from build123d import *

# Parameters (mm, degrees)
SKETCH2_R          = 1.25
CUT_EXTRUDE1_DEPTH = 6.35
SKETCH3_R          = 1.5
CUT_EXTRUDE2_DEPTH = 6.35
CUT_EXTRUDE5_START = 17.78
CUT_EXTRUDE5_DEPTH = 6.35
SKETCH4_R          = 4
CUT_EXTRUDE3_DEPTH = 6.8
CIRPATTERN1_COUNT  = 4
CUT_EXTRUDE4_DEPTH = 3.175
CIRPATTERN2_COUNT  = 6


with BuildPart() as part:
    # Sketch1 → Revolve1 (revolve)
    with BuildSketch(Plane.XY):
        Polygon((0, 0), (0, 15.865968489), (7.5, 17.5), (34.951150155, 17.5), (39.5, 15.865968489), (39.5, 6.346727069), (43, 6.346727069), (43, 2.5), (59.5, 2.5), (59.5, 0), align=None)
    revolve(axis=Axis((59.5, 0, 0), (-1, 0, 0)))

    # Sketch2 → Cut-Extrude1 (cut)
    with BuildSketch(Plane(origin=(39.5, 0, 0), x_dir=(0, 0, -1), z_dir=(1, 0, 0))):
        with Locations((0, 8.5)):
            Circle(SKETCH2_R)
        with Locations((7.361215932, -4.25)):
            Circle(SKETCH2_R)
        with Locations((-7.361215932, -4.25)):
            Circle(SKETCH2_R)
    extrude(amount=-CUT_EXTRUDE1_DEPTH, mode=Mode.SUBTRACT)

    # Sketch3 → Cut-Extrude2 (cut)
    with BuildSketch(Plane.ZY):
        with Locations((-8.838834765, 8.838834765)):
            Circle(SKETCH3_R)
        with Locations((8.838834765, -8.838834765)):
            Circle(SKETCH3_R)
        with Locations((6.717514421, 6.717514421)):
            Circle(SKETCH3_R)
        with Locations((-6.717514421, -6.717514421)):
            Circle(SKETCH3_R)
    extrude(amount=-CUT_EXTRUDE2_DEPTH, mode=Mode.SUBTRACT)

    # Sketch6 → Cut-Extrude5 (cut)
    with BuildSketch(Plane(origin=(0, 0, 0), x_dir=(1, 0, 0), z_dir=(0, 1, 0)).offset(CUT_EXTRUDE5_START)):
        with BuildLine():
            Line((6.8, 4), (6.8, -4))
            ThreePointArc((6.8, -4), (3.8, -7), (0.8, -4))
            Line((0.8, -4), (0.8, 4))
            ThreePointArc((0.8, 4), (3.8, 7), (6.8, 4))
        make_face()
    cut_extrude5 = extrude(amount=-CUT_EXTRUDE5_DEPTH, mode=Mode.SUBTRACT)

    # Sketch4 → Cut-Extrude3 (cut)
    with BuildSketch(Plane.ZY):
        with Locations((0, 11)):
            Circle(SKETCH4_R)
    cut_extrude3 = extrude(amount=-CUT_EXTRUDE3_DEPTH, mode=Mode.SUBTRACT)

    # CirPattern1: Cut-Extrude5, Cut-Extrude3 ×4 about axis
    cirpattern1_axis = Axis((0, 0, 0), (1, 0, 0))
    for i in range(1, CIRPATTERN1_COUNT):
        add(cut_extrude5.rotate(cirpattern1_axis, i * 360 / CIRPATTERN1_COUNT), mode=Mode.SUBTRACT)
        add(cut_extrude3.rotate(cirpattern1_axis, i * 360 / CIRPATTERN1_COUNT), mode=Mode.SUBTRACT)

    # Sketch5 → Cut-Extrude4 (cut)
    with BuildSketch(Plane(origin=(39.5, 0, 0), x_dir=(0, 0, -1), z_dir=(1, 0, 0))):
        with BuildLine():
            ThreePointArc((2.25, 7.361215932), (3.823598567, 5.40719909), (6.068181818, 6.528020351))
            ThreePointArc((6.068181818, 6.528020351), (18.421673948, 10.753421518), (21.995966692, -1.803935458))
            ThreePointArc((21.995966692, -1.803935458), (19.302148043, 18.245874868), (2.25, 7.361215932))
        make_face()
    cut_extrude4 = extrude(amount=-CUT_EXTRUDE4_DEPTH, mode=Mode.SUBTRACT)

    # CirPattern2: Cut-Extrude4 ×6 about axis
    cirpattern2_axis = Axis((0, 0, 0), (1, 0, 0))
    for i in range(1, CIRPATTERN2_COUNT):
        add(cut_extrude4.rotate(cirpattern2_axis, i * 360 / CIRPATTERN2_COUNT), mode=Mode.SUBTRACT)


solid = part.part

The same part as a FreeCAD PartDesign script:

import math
import FreeCAD as App
import Part
import Sketcher

V = App.Vector
Q = App.Units.Quantity


def add_polygon(sketch, points):
    """Adds a closed chain of lines whose ends are joined by coincident constraints."""
    first, n = sketch.GeometryCount, len(points)
    for a, b in zip(points, points[1:] + points[:1]):
        sketch.addGeometry(Part.LineSegment(App.Vector(*a, 0), App.Vector(*b, 0)), False)
    for i in range(n):
        sketch.addConstraint(Sketcher.Constraint("Coincident", first + i, 2, first + (i + 1) % n, 1))

doc = App.newDocument("Part")
body = doc.addObject("PartDesign::Body", "Body")

# Sketch on XY plane
sketch1 = body.newObject("Sketcher::SketchObject", "Sketch")
sketch1.AttachmentSupport = (doc.getObject("XY_Plane"), [""])
sketch1.MapMode = "FlatFace"
add_polygon(sketch1, [(0, 15.9), (0, 0), (59.5, 0), (59.5, 2.5), (43, 2.5), (43, 6.3), (39.5, 6.3), (39.5, 15.9), (35, 17.5), (7.5, 17.5)])  # lines 0-9
sketch1.addConstraint([
    Sketcher.Constraint("Vertical", 0),
    Sketcher.Constraint("Horizontal", 1),
    Sketcher.Constraint("Vertical", 2),
    Sketcher.Constraint("Horizontal", 3),
    Sketcher.Constraint("Vertical", 4),
    Sketcher.Constraint("Horizontal", 5),
    Sketcher.Constraint("Vertical", 6),
    Sketcher.Constraint("Horizontal", 8),
    Sketcher.Constraint("Coincident", 0, 2, -1, 1),
    Sketcher.Constraint("Horizontal", 6, 2, 9, 2),
    Sketcher.Constraint("DistanceX", 1, 1, 1, 2, Q("59.5 mm")),
    Sketcher.Constraint("DistanceX", 3, 2, 3, 1, Q("16.5 mm")),
    Sketcher.Constraint("DistanceX", 5, 2, 5, 1, Q("3.5 mm")),
    Sketcher.Constraint("DistanceY", 2, 1, 2, 2, Q("2.5 mm")),
    Sketcher.Constraint("DistanceY", 3, 2, 7, 2, Q("15 mm")),
    Sketcher.Constraint("DistanceX", 8, 2, 6, 2, Q("32 mm")),
    Sketcher.Constraint("DistanceX", 8, 2, 8, 1, Q("27.45115 mm")),
    Sketcher.Constraint("DistanceY", 0, 2, 0, 1, Q("15.865968 mm")),
    Sketcher.Constraint("DistanceY", 6, 1, 6, 2, Q("9.519241 mm")),
])
revolution = body.newObject("PartDesign::Revolution", "Revolution")
revolution.Profile = sketch1
revolution.ReferenceAxis = (sketch1, ["H_Axis"])
revolution.Angle = 360

# Sketch on YZ plane
sketch2 = body.newObject("Sketcher::SketchObject", "Sketch001")
sketch2.AttachmentSupport = (doc.getObject("YZ_Plane"), [""])
sketch2.MapMode = "FlatFace"
sketch2.AttachmentOffset = App.Placement(V(0, 0, 39.5), App.Rotation())
sketch2.addGeometry([
    Part.Circle(V(8.5, 0, 0), V(0, 0, 1), 1.2),
    Part.Circle(V(-4.2, -7.4, 0), V(0, 0, 1), 1.2),
    Part.Circle(V(-4.2, 7.4, 0), V(0, 0, 1), 1.2),
], False)
sketch2.addConstraint([
    Sketcher.Constraint("Equal", 0, 1),
    Sketcher.Constraint("Equal", 1, 2),
    Sketcher.Constraint("Symmetric", 1, 3, 2, 3, -1),
    Sketcher.Constraint("PointOnObject", 0, 3, -1),
    Sketcher.Constraint("Diameter", 0, Q("2.5 mm")),
    Sketcher.Constraint("DistanceX", -1, 1, 0, 3, Q("8.5 mm")),
    Sketcher.Constraint("DistanceX", 1, 3, -1, 1, Q("4.25 mm")),
    Sketcher.Constraint("DistanceY", 1, 3, 2, 3, Q("14.722432 mm")),
])
pocket1 = body.newObject("PartDesign::Pocket", "Pocket")
pocket1.Profile = sketch2
pocket1.Length = 6.35

# Sketch on YZ plane
sketch3 = body.newObject("Sketcher::SketchObject", "Sketch002")
sketch3.AttachmentSupport = (doc.getObject("YZ_Plane"), [""])
sketch3.MapMode = "FlatFace"
sketch3.addGeometry([
    Part.Circle(V(8.8, -8.8, 0), V(0, 0, 1), 1.5),
    Part.Circle(V(-8.8, 8.8, 0), V(0, 0, 1), 1.5),
    Part.Circle(V(6.7, 6.7, 0), V(0, 0, 1), 1.5),
    Part.Circle(V(-6.7, -6.7, 0), V(0, 0, 1), 1.5),
], False)
sketch3.addConstraint([
    Sketcher.Constraint("Equal", 0, 1),
    Sketcher.Constraint("Equal", 1, 2),
    Sketcher.Constraint("Equal", 2, 3),
    Sketcher.Constraint("Symmetric", 0, 3, 1, 3, -1, 1),
    Sketcher.Constraint("Symmetric", 2, 3, 3, 3, -1, 1),
    Sketcher.Constraint("Diameter", 0, Q("3 mm")),
    Sketcher.Constraint("DistanceX", 1, 3, 0, 3, Q("17.67767 mm")),
    Sketcher.Constraint("DistanceY", 0, 3, 1, 3, Q("17.67767 mm")),
    Sketcher.Constraint("DistanceX", 2, 3, 0, 3, Q("2.12132 mm")),
    Sketcher.Constraint("DistanceY", 0, 3, 2, 3, Q("15.556349 mm")),
])
pocket2 = body.newObject("PartDesign::Pocket", "Pocket001")
pocket2.Profile = sketch3
pocket2.Length = 6.35
pocket2.Reversed = True

# Sketch on XZ plane
sketch4 = body.newObject("Sketcher::SketchObject", "Sketch003")
sketch4.AttachmentSupport = (doc.getObject("XZ_Plane"), [""])
sketch4.MapMode = "FlatFace"
sketch4.AttachmentOffset = App.Placement(V(0, 0, -17.78), App.Rotation())
sketch4.addGeometry([
    Part.LineSegment(V(6.8, 4, 0), V(6.8, -4, 0)),
    Part.ArcOfCircle(Part.Circle(V(3.8, -4, 0), V(0, 0, 1), 3), math.radians(180), math.radians(360)),
    Part.LineSegment(V(0.8, -4, 0), V(0.8, 4, 0)),
    Part.ArcOfCircle(Part.Circle(V(3.8, 4, 0), V(0, 0, 1), 3), math.radians(0), math.radians(180)),
], False)
sketch4.addConstraint([
    Sketcher.Constraint("Tangent", 0, 2, 1, 2),
    Sketcher.Constraint("Tangent", 1, 1, 2, 1),
    Sketcher.Constraint("Tangent", 2, 2, 3, 2),
    Sketcher.Constraint("Tangent", 3, 1, 0, 1),
    Sketcher.Constraint("Vertical", 0),
    Sketcher.Constraint("Vertical", 2),
    Sketcher.Constraint("Radius", 1, Q("3 mm")),
    Sketcher.Constraint("DistanceY", 0, 2, 0, 1, Q("8 mm")),
    Sketcher.Constraint("DistanceY", 1, 3, -1, 1, Q("4 mm")),
    Sketcher.Constraint("DistanceX", -1, 1, 1, 3, Q("3.8 mm")),
])
pocket3 = body.newObject("PartDesign::Pocket", "Pocket002")
pocket3.Profile = sketch4
pocket3.Length = 6.35
pocket3.Reversed = True

# Sketch on YZ plane
sketch5 = body.newObject("Sketcher::SketchObject", "Sketch004")
sketch5.AttachmentSupport = (doc.getObject("YZ_Plane"), [""])
sketch5.MapMode = "FlatFace"
sketch5.addGeometry(Part.Circle(V(11, 0, 0), V(0, 0, 1), 4), False)
sketch5.addConstraint([
    Sketcher.Constraint("PointOnObject", 0, 3, -1),
    Sketcher.Constraint("Diameter", 0, Q("8 mm")),
    Sketcher.Constraint("DistanceX", -1, 1, 0, 3, Q("11 mm")),
])
pocket4 = body.newObject("PartDesign::Pocket", "Pocket003")
pocket4.Profile = sketch5
pocket4.Length = 6.8
pocket4.Reversed = True
doc.recompute()

polarpattern = body.newObject("PartDesign::PolarPattern", "PolarPattern")
polarpattern.Originals = [pocket3, pocket4]
polarpattern.Axis = (doc.getObject("X_Axis"), [""])
polarpattern.Angle = 360
polarpattern.Occurrences = 4
body.Tip = polarpattern

# Sketch on YZ plane
sketch6 = body.newObject("Sketcher::SketchObject", "Sketch005")
sketch6.AttachmentSupport = (doc.getObject("YZ_Plane"), [""])
sketch6.MapMode = "FlatFace"
sketch6.AttachmentOffset = App.Placement(V(0, 0, 39.5), App.Rotation())
sketch6.addGeometry([
    Part.ArcOfCircle(Part.Circle(V(7.4, -4.2, 0), V(0, 0, 1), 2), math.radians(90), math.radians(245)),
    Part.ArcOfCircle(Part.Circle(V(2.8, -14.2, 0), V(0, 0, 1), 9), math.radians(-121), math.radians(65)),
    Part.ArcOfCircle(Part.Circle(V(7.4, -14.2, 0), V(0, 0, 1), 12), math.radians(-140), math.radians(90)),
], False)
sketch6.addConstraint([
    Sketcher.Constraint("Tangent", 0, 2, 1, 2),
    Sketcher.Constraint("Coincident", 1, 1, 2, 1),
    Sketcher.Constraint("Tangent", 2, 2, 0, 1),
    Sketcher.Constraint("Horizontal", 1, 3, 2, 3),
    Sketcher.Constraint("Vertical", 0, 3, 2, 3),
    Sketcher.Constraint("Radius", 0, Q("2 mm")),
    Sketcher.Constraint("Radius", 1, Q("9 mm")),
    Sketcher.Constraint("Radius", 2, Q("12 mm")),
    Sketcher.Constraint("DistanceY", 0, 3, -1, 1, Q("4.25 mm")),
    Sketcher.Constraint("DistanceX", -1, 1, 1, 3, Q("2.77864 mm")),
])
pocket5 = body.newObject("PartDesign::Pocket", "Pocket004")
pocket5.Profile = sketch6
pocket5.Length = 3.175
doc.recompute()

polarpattern2 = body.newObject("PartDesign::PolarPattern", "PolarPattern001")
polarpattern2.Originals = [pocket5]
polarpattern2.Axis = (doc.getObject("X_Axis"), [""])
polarpattern2.Angle = 360
polarpattern2.Occurrences = 6
body.Tip = polarpattern2

doc.recompute()
